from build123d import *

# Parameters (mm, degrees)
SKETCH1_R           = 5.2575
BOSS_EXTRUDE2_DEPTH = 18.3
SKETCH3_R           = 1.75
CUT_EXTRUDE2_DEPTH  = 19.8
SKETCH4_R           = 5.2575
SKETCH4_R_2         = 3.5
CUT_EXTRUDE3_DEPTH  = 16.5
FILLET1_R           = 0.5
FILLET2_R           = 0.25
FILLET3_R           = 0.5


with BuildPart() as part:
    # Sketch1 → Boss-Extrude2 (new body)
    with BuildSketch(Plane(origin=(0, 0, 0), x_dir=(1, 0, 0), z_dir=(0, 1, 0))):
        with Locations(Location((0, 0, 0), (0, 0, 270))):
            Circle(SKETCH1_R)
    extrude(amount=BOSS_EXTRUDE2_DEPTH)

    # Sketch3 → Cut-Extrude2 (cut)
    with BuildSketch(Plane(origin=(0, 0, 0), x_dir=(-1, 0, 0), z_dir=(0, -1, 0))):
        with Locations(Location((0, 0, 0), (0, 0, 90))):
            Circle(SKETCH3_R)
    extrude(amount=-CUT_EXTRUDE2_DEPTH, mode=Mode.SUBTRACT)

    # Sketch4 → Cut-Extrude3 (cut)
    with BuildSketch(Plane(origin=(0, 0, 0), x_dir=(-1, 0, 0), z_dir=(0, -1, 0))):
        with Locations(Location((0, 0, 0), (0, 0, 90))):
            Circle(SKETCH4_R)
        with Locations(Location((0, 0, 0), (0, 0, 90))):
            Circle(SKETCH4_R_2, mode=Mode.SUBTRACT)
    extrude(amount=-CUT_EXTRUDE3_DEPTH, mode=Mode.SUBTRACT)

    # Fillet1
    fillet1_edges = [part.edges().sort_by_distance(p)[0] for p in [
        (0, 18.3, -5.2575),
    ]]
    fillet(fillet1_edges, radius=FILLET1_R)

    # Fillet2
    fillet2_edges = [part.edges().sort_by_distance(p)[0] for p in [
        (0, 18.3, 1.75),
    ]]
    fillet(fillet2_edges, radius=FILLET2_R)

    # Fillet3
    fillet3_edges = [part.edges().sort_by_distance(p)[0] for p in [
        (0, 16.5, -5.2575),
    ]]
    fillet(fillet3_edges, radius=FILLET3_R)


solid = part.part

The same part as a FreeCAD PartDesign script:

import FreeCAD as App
import Part
import Sketcher
from FreeCAD import Vector


def edges_at(feature, points):
    """Names of the edges that pass closest to the given points."""
    edges = feature.Shape.Edges
    near = lambda p: min(range(len(edges)), key=lambda i: edges[i].distToShape(Part.Vertex(*p))[0])
    return sorted({f"Edge{near(p) + 1}" for p in points})

doc = App.newDocument("Part")
params = doc.addObject("Spreadsheet::Sheet", "Params")
for row, (alias, value) in enumerate([
    ("pad1_length", "18.3 mm"),
    ("sketch2_diameter", "3.5 mm"),
    ("pocket1_length", "19.8 mm"),
    ("sketch3_diameter", "7 mm"),
    ("pocket2_length", "16.5 mm"),
    ("fillet_radius", "0.5 mm"),
    ("fillet2_radius", "0.25 mm"),
    ("fillet3_radius", "0.5 mm"),
], start=1):
    params.set(f"A{row}", alias)
    params.set(f"B{row}", "=" + value)
    params.setAlias(f"B{row}", alias)

body = doc.addObject("PartDesign::Body", "Body")

# Sketch on XZ plane
sketch1 = body.newObject("Sketcher::SketchObject", "Sketch")
sketch1.AttachmentSupport = (doc.getObject("XZ_Plane"), [""])
sketch1.MapMode = "FlatFace"
sketch1.addGeometry(Part.Circle(Vector(0, 0, 0), Vector(0, 0, 1), 5), False)
sketch1.addConstraint(Sketcher.Constraint("Coincident", 0, 3, -1, 1))
sketch1.addConstraint(Sketcher.Constraint("Diameter", 0, 10.515))
pad1 = body.newObject("PartDesign::Pad", "Pad")
pad1.Profile = sketch1
pad1.setExpression("Length", "Params.pad1_length")
pad1.Reversed = True

# Sketch on XZ plane
sketch2 = body.newObject("Sketcher::SketchObject", "Sketch001")
sketch2.AttachmentSupport = (doc.getObject("XZ_Plane"), [""])
sketch2.MapMode = "FlatFace"
sketch2.addGeometry(Part.Circle(Vector(0, 0, 0), Vector(0, 0, 1), 1.8), False)
sketch2.addConstraint(Sketcher.Constraint("Coincident", 0, 3, -1, 1))
sketch2.addConstraint(Sketcher.Constraint("Diameter", 0, 3.5))
sketch2.setExpression("Constraints[1]", "Params.sketch2_diameter")
pocket1 = body.newObject("PartDesign::Pocket", "Pocket")
pocket1.Profile = sketch2
pocket1.setExpression("Length", "Params.pocket1_length")

# Sketch on XZ plane
sketch3 = body.newObject("Sketcher::SketchObject", "Sketch002")
sketch3.AttachmentSupport = (doc.getObject("XZ_Plane"), [""])
sketch3.MapMode = "FlatFace"
sketch3.addGeometry(Part.Circle(Vector(0, 0, 0), Vector(0, 0, 1), 5.3), False)
sketch3.addGeometry(Part.Circle(Vector(0, 0, 0), Vector(0, 0, 1), 3.5), False)
sketch3.addConstraint(Sketcher.Constraint("Coincident", 0, 3, -1, 1))
sketch3.addConstraint(Sketcher.Constraint("Coincident", 1, 3, -1, 1))
sketch3.addConstraint(Sketcher.Constraint("Diameter", 1, 7.0))
sketch3.addConstraint(Sketcher.Constraint("Diameter", 0, 10.515))
sketch3.setExpression("Constraints[2]", "Params.sketch3_diameter")
pocket2 = body.newObject("PartDesign::Pocket", "Pocket001")
pocket2.Profile = sketch3
pocket2.setExpression("Length", "Params.pocket2_length")
doc.recompute()

fillet = body.newObject("PartDesign::Fillet", "Fillet")
fillet.Base = (pocket2, edges_at(pocket2, [(0, 18.3, -5.258)]))
fillet.setExpression("Radius", "Params.fillet_radius")
doc.recompute()

fillet2 = body.newObject("PartDesign::Fillet", "Fillet001")
fillet2.Base = (fillet, edges_at(fillet, [(0, 18.3, 1.75)]))
fillet2.setExpression("Radius", "Params.fillet2_radius")
doc.recompute()

fillet3 = body.newObject("PartDesign::Fillet", "Fillet002")
fillet3.Base = (fillet2, edges_at(fillet2, [(0, 16.5, -5.258)]))
fillet3.setExpression("Radius", "Params.fillet3_radius")

doc.recompute()
